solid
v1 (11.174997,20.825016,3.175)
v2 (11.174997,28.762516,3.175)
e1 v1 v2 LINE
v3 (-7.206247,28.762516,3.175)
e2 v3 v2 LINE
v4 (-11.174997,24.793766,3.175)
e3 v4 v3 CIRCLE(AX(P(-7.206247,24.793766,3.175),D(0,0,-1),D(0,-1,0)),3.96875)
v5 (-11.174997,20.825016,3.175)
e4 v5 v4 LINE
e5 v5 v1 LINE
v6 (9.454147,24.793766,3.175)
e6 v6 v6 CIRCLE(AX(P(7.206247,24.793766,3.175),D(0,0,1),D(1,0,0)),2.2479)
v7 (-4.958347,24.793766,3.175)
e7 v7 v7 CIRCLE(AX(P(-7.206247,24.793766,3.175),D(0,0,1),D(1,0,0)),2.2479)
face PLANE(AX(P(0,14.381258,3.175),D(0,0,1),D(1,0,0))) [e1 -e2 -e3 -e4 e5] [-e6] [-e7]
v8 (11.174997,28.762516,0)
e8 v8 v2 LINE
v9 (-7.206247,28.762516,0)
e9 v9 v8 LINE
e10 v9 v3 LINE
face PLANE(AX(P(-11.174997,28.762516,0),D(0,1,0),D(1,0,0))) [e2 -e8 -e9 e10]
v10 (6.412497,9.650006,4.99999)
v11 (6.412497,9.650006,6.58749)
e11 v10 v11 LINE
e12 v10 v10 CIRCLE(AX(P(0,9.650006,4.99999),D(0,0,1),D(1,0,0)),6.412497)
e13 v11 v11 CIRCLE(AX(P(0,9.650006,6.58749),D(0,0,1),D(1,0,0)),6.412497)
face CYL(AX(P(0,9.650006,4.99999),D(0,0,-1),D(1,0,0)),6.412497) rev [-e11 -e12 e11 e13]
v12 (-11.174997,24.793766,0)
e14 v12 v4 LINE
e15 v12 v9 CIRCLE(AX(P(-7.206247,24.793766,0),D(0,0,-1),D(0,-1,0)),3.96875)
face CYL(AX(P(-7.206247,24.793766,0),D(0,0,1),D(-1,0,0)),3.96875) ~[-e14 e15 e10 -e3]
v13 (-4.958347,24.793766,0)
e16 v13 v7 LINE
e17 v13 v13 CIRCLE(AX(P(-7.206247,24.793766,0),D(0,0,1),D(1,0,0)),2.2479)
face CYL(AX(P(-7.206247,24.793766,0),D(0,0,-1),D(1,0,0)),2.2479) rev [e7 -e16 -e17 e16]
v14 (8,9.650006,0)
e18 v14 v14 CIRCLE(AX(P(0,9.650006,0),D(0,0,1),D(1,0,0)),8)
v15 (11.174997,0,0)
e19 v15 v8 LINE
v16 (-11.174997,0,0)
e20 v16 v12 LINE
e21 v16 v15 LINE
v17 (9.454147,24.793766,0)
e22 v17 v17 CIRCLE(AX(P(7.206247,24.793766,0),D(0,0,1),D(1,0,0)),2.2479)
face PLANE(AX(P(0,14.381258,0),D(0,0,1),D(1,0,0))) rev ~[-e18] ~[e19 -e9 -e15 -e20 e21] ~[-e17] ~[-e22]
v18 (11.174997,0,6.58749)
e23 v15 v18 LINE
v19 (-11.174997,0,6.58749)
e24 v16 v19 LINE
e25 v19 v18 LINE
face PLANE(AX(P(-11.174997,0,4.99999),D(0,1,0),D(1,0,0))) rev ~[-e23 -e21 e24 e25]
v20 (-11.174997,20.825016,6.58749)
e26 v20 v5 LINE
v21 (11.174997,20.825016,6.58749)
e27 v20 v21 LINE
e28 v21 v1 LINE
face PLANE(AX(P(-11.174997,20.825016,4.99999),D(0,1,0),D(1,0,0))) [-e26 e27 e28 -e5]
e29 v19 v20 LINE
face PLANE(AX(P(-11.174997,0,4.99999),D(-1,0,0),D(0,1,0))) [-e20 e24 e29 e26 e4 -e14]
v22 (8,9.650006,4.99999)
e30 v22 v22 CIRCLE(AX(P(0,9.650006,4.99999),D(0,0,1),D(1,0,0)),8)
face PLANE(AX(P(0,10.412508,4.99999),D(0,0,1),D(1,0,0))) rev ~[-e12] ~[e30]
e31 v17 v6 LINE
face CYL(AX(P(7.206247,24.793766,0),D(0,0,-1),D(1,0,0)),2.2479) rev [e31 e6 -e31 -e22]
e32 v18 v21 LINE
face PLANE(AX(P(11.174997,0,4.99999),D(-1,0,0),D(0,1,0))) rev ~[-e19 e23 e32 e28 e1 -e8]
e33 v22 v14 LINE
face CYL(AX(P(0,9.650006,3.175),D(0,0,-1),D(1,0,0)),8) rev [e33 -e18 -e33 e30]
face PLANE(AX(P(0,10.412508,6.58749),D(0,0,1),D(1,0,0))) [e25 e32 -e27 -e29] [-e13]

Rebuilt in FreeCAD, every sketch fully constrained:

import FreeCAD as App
import Part
import Sketcher
from FreeCAD import Vector
Q = App.Units.Quantity


def edges_at(feature, points):
    """Names of the edges that pass closest to the given points."""
    edges = feature.Shape.Edges
    near = lambda p: min(range(len(edges)), key=lambda i: edges[i].distToShape(Part.Vertex(*p))[0])
    return sorted({f"Edge{near(p) + 1}" for p in points})

doc = App.newDocument("Part")
body = doc.addObject("PartDesign::Body", "Body")

sketch1 = doc.addObject("Sketcher::SketchObject", "Sketch")
body.addObject(sketch1)
sketch1.AttachmentSupport = (doc.XY_Plane, [""])
sketch1.MapMode = "FlatFace"
sketch1.addGeometry(Part.LineSegment(Vector(-11.174997, 28.762516, 0), Vector(-11.174997, 0, 0)), False)
sketch1.addGeometry(Part.LineSegment(Vector(-11.174997, 0, 0), Vector(11.174997, 0, 0)), False)
sketch1.addGeometry(Part.LineSegment(Vector(11.174997, 0, 0), Vector(11.174997, 28.762516, 0)), False)
sketch1.addGeometry(Part.LineSegment(Vector(11.174997, 28.762516, 0), Vector(-11.174997, 28.762516, 0)), False)
sketch1.addGeometry(Part.Circle(Vector(0, 9.650006, 0), Vector(0, 0, 1), 8), False)
sketch1.addGeometry(Part.Circle(Vector(-7.206247, 24.793766, 0), Vector(0, 0, 1), 2.2479), False)
sketch1.addGeometry(Part.Circle(Vector(7.206247, 24.793766, 0), Vector(0, 0, 1), 2.2479), False)
sketch1.addConstraint(Sketcher.Constraint("Coincident", 0, 2, 1, 1))
sketch1.addConstraint(Sketcher.Constraint("Coincident", 1, 2, 2, 1))
sketch1.addConstraint(Sketcher.Constraint("Coincident", 2, 2, 3, 1))
sketch1.addConstraint(Sketcher.Constraint("Coincident", 3, 2, 0, 1))
sketch1.addConstraint(Sketcher.Constraint("Vertical", 0))
sketch1.addConstraint(Sketcher.Constraint("Horizontal", 1))
sketch1.addConstraint(Sketcher.Constraint("Vertical", 2))
sketch1.addConstraint(Sketcher.Constraint("Horizontal", 3))
sketch1.addConstraint(Sketcher.Constraint("Equal", 5, 6))
sketch1.addConstraint(Sketcher.Constraint("Symmetric", 0, 2, 1, 2, -1, 1))
sketch1.addConstraint(Sketcher.Constraint("Symmetric", 5, 3, 6, 3, -2))
sketch1.addConstraint(Sketcher.Constraint("PointOnObject", 4, 3, -2))
sketch1.addConstraint(Sketcher.Constraint("Diameter", 5, Q("0.177 in")))
sketch1.addConstraint(Sketcher.Constraint("Diameter", 4, Q("16 mm")))
sketch1.addConstraint(Sketcher.Constraint("DistanceX", 0, 2, 5, 3, Q("0.15625 in")))
sketch1.addConstraint(Sketcher.Constraint("DistanceY", 6, 3, 2, 2, Q("0.15625 in")))
sketch1.addConstraint(Sketcher.Constraint("DistanceX", 1, 1, 1, 2, Q("22.349994 mm")))
sketch1.addConstraint(Sketcher.Constraint("DistanceY", 0, 2, 0, 1, Q("28.762516 mm")))
sketch1.addConstraint(Sketcher.Constraint("DistanceY", 4, 3, 5, 3, Q("15.14376 mm")))
pad1 = doc.addObject("PartDesign::Pad", "Pad")
body.addObject(pad1)
pad1.Profile = sketch1
pad1.Length = Q("0.125 in")

sketch2 = doc.addObject("Sketcher::SketchObject", "Sketch001")
body.addObject(sketch2)
sketch2.AttachmentSupport = (doc.XY_Plane, [""])
sketch2.MapMode = "FlatFace"
sketch2.AttachmentOffset = App.Placement(Vector(0, 0, 0.125 * 25.4), App.Rotation())
sketch2.addGeometry(Part.LineSegment(Vector(-11.174997, 20.825016, 0), Vector(-11.174997, 0, 0)), False)
sketch2.addGeometry(Part.LineSegment(Vector(-11.174997, 0, 0), Vector(11.174997, 0, 0)), False)
sketch2.addGeometry(Part.LineSegment(Vector(11.174997, 0, 0), Vector(11.174997, 20.825016, 0)), False)
sketch2.addGeometry(Part.LineSegment(Vector(11.174997, 20.825016, 0), Vector(-11.174997, 20.825016, 0)), False)
sketch2.addGeometry(Part.Circle(Vector(0, 9.650006, 0), Vector(0, 0, 1), 8), False)
sketch2.addConstraint(Sketcher.Constraint("Coincident", 0, 2, 1, 1))
sketch2.addConstraint(Sketcher.Constraint("Coincident", 1, 2, 2, 1))
sketch2.addConstraint(Sketcher.Constraint("Coincident", 2, 2, 3, 1))
sketch2.addConstraint(Sketcher.Constraint("Coincident", 3, 2, 0, 1))
sketch2.addConstraint(Sketcher.Constraint("Vertical", 0))
sketch2.addConstraint(Sketcher.Constraint("Horizontal", 1))
sketch2.addConstraint(Sketcher.Constraint("Vertical", 2))
sketch2.addConstraint(Sketcher.Constraint("Horizontal", 3))
sketch2.addConstraint(Sketcher.Constraint("Symmetric", 0, 2, 1, 2, -1, 1))
sketch2.addConstraint(Sketcher.Constraint("PointOnObject", 4, 3, -2))
sketch2.addConstraint(Sketcher.Constraint("Diameter", 4, Q("16 mm")))
sketch2.addConstraint(Sketcher.Constraint("DistanceX", 1, 1, 1, 2, Q("22.349994 mm")))
sketch2.addConstraint(Sketcher.Constraint("DistanceY", 0, 2, 0, 1, Q("20.825016 mm")))
sketch2.addConstraint(Sketcher.Constraint("DistanceY", 4, 3, 2, 2, Q("11.17501 mm")))
pad2 = doc.addObject("PartDesign::Pad", "Pad001")
body.addObject(pad2)
pad2.Profile = sketch2
pad2.Length = 1.82499

sketch3 = doc.addObject("Sketcher::SketchObject", "Sketch002")
body.addObject(sketch3)
sketch3.AttachmentSupport = (doc.XY_Plane, [""])
sketch3.MapMode = "FlatFace"
sketch3.AttachmentOffset = App.Placement(Vector(0, 0, 4.99999), App.Rotation())
sketch3.addGeometry(Part.LineSegment(Vector(-11.174997, 20.825016, 0), Vector(-11.174997, 0, 0)), False)
sketch3.addGeometry(Part.LineSegment(Vector(-11.174997, 0, 0), Vector(11.174997, 0, 0)), False)
sketch3.addGeometry(Part.LineSegment(Vector(11.174997, 0, 0), Vector(11.174997, 20.825016, 0)), False)
sketch3.addGeometry(Part.LineSegment(Vector(11.174997, 20.825016, 0), Vector(-11.174997, 20.825016, 0)), False)
sketch3.addGeometry(Part.Circle(Vector(0, 9.650006, 0), Vector(0, 0, 1), 6.412497), False)
sketch3.addConstraint(Sketcher.Constraint("Coincident", 0, 2, 1, 1))
sketch3.addConstraint(Sketcher.Constraint("Coincident", 1, 2, 2, 1))
sketch3.addConstraint(Sketcher.Constraint("Coincident", 2, 2, 3, 1))
sketch3.addConstraint(Sketcher.Constraint("Coincident", 3, 2, 0, 1))
sketch3.addConstraint(Sketcher.Constraint("Vertical", 0))
sketch3.addConstraint(Sketcher.Constraint("Horizontal", 1))
sketch3.addConstraint(Sketcher.Constraint("Vertical", 2))
sketch3.addConstraint(Sketcher.Constraint("Horizontal", 3))
sketch3.addConstraint(Sketcher.Constraint("Symmetric", 0, 2, 1, 2, -1, 1))
sketch3.addConstraint(Sketcher.Constraint("PointOnObject", 4, 3, -2))
sketch3.addConstraint(Sketcher.Constraint("Diameter", 4, Q("12.824994 mm")))
sketch3.addConstraint(Sketcher.Constraint("DistanceX", 1, 1, 1, 2, Q("22.349994 mm")))
sketch3.addConstraint(Sketcher.Constraint("DistanceY", 0, 2, 0, 1, Q("20.825016 mm")))
sketch3.addConstraint(Sketcher.Constraint("DistanceY", 4, 3, 2, 2, Q("11.17501 mm")))
pad3 = doc.addObject("PartDesign::Pad", "Pad002")
body.addObject(pad3)
pad3.Profile = sketch3
pad3.Length = Q("0.0625 in")
doc.recompute()

fillet = doc.addObject("PartDesign::Fillet", "Fillet")
body.addObject(fillet)
fillet.Base = (pad3, edges_at(pad3, [(-11.175, 28.763, 1.587)]))
fillet.Radius = Q("0.15625 in")

doc.recompute()
